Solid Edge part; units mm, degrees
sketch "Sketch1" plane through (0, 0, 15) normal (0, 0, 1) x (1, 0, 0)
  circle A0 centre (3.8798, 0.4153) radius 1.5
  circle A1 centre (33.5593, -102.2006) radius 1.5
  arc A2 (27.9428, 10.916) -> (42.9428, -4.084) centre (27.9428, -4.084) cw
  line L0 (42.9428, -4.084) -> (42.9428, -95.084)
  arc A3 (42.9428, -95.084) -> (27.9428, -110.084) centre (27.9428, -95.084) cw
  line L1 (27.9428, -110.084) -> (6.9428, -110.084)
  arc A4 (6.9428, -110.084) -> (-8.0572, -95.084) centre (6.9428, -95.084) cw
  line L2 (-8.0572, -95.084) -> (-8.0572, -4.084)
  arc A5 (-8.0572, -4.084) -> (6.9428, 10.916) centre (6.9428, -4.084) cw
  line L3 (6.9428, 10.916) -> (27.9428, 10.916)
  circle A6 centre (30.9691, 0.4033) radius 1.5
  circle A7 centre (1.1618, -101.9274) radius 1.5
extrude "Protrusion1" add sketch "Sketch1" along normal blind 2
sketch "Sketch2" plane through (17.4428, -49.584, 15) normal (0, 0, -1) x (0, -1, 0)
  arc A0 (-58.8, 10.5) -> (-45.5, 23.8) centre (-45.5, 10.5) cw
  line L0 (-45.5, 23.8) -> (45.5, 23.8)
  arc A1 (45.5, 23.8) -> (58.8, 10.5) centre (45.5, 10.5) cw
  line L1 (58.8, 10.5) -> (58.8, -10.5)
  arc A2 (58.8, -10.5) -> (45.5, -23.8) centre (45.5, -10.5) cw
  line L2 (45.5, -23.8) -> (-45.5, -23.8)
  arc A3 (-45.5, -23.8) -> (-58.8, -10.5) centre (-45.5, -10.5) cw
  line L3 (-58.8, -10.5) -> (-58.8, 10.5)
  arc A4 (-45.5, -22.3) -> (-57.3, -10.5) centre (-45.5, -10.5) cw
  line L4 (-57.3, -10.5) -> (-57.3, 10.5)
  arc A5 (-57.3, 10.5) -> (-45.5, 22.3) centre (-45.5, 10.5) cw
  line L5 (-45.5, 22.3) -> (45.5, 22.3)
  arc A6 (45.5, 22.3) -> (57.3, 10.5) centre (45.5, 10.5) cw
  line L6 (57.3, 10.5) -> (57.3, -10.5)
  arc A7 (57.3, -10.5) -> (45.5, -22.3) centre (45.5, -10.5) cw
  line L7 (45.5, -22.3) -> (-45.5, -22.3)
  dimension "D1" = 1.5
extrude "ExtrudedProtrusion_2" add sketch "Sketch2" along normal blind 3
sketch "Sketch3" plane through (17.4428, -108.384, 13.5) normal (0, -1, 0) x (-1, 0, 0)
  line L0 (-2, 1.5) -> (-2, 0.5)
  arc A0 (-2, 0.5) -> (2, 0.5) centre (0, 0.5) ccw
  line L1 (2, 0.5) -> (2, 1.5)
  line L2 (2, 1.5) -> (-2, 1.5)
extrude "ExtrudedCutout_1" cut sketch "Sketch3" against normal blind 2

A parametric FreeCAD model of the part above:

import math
import FreeCAD as App
import Part
import Sketcher
from FreeCAD import Vector
Q = App.Units.Quantity

doc = App.newDocument("Part")
body = doc.addObject("PartDesign::Body", "Body")

# Sketch on XY plane
sketch1 = body.newObject("Sketcher::SketchObject", "Sketch")
sketch1.AttachmentSupport = (doc.getObject("XY_Plane"), [""])
sketch1.MapMode = "FlatFace"
sketch1.AttachmentOffset = App.Placement(Vector(0, 0, 15), App.Rotation())
sketch1.addGeometry(Part.ArcOfCircle(Part.Circle(Vector(27.9, -4.1, 0), Vector(0, 0, 1), 15), math.radians(0), math.radians(90)), False)
sketch1.addGeometry(Part.LineSegment(Vector(27.9, 10.9, 0), Vector(6.9, 10.9, 0)), False)
sketch1.addGeometry(Part.ArcOfCircle(Part.Circle(Vector(6.9, -4.1, 0), Vector(0, 0, 1), 15), math.radians(90), math.radians(180)), False)
sketch1.addGeometry(Part.LineSegment(Vector(-8.1, -4.1, 0), Vector(-8.1, -95.1, 0)), False)
sketch1.addGeometry(Part.ArcOfCircle(Part.Circle(Vector(6.9, -95.1, 0), Vector(0, 0, 1), 15), math.radians(180), math.radians(270)), False)
sketch1.addGeometry(Part.LineSegment(Vector(6.9, -110.1, 0), Vector(27.9, -110.1, 0)), False)
sketch1.addGeometry(Part.ArcOfCircle(Part.Circle(Vector(27.9, -95.1, 0), Vector(0, 0, 1), 15), math.radians(-90), math.radians(0)), False)
sketch1.addGeometry(Part.LineSegment(Vector(42.9, -95.1, 0), Vector(42.9, -4.1, 0)), False)
sketch1.addGeometry(Part.Circle(Vector(1.2, -101.9, 0), Vector(0, 0, 1), 1.5), False)
sketch1.addGeometry(Part.Circle(Vector(33.6, -102.2, 0), Vector(0, 0, 1), 1.5), False)
sketch1.addGeometry(Part.Circle(Vector(3.9, 0.4, 0), Vector(0, 0, 1), 1.5), False)
sketch1.addGeometry(Part.Circle(Vector(31, 0.4, 0), Vector(0, 0, 1), 1.5), False)
sketch1.addConstraint(Sketcher.Constraint("Tangent", 0, 2, 1, 1))
sketch1.addConstraint(Sketcher.Constraint("Tangent", 1, 2, 2, 1))
sketch1.addConstraint(Sketcher.Constraint("Tangent", 2, 2, 3, 1))
sketch1.addConstraint(Sketcher.Constraint("Tangent", 3, 2, 4, 1))
sketch1.addConstraint(Sketcher.Constraint("Tangent", 4, 2, 5, 1))
sketch1.addConstraint(Sketcher.Constraint("Tangent", 5, 2, 6, 1))
sketch1.addConstraint(Sketcher.Constraint("Tangent", 6, 2, 7, 1))
sketch1.addConstraint(Sketcher.Constraint("Tangent", 7, 2, 0, 1))
sketch1.addConstraint(Sketcher.Constraint("Horizontal", 1))
sketch1.addConstraint(Sketcher.Constraint("Vertical", 3))
sketch1.addConstraint(Sketcher.Constraint("Horizontal", 5))
sketch1.addConstraint(Sketcher.Constraint("Vertical", 7))
sketch1.addConstraint(Sketcher.Constraint("Equal", 0, 2))
sketch1.addConstraint(Sketcher.Constraint("Equal", 2, 4))
sketch1.addConstraint(Sketcher.Constraint("Equal", 4, 6))
sketch1.addConstraint(Sketcher.Constraint("Equal", 8, 9))
sketch1.addConstraint(Sketcher.Constraint("Equal", 9, 10))
sketch1.addConstraint(Sketcher.Constraint("Equal", 10, 11))
sketch1.addConstraint(Sketcher.Constraint("Diameter", 8, Q("3 mm")))
sketch1.addConstraint(Sketcher.Constraint("Radius", 0, Q("15 mm")))
sketch1.addConstraint(Sketcher.Constraint("DistanceX", 1, 2, 1, 1, Q("21 mm")))
sketch1.addConstraint(Sketcher.Constraint("DistanceY", 3, 2, 3, 1, Q("91 mm")))
sketch1.addConstraint(Sketcher.Constraint("DistanceY", 0, 3, -1, 1, Q("4.084 mm")))
sketch1.addConstraint(Sketcher.Constraint("DistanceX", -1, 1, 11, 3, Q("30.969 mm")))
sketch1.addConstraint(Sketcher.Constraint("DistanceX", 8, 3, 4, 3, Q("5.781 mm")))
sketch1.addConstraint(Sketcher.Constraint("DistanceX", 10, 3, 2, 3, Q("3.063 mm")))
sketch1.addConstraint(Sketcher.Constraint("DistanceY", 11, 3, 10, 3, Q("0.012 mm")))
sketch1.addConstraint(Sketcher.Constraint("DistanceX", -1, 1, 0, 3, Q("27.9428 mm")))
sketch1.addConstraint(Sketcher.Constraint("DistanceY", 8, 3, -1, 1, Q("101.9274 mm")))
sketch1.addConstraint(Sketcher.Constraint("DistanceX", -1, 1, 9, 3, Q("33.5593 mm")))
sketch1.addConstraint(Sketcher.Constraint("DistanceY", 9, 3, -1, 1, Q("102.2006 mm")))
sketch1.addConstraint(Sketcher.Constraint("DistanceY", -1, 1, 10, 3, Q("0.4153 mm")))
pad1 = body.newObject("PartDesign::Pad", "Pad")
pad1.Profile = sketch1
pad1.Length = 2

# Sketch on XY plane
sketch2 = body.newObject("Sketcher::SketchObject", "Sketch001")
sketch2.AttachmentSupport = (doc.getObject("XY_Plane"), [""])
sketch2.MapMode = "FlatFace"
sketch2.AttachmentOffset = App.Placement(Vector(0, 0, 15), App.Rotation())
sketch2.addGeometry(Part.ArcOfCircle(Part.Circle(Vector(7, -4, 0), Vector(0, 0, 1), 13), math.radians(90), math.radians(180)), False)
sketch2.addGeometry(Part.LineSegment(Vector(7, 9, 0), Vector(28, 9, 0)), False)
sketch2.addGeometry(Part.ArcOfCircle(Part.Circle(Vector(28, -4, 0), Vector(0, 0, 1), 13), math.radians(0), math.radians(90)), False)
sketch2.addGeometry(Part.LineSegment(Vector(41, -4, 0), Vector(41, -95, 0)), False)
sketch2.addGeometry(Part.ArcOfCircle(Part.Circle(Vector(28, -95, 0), Vector(0, 0, 1), 13), math.radians(-90), math.radians(0)), False)
sketch2.addGeometry(Part.LineSegment(Vector(28, -108, 0), Vector(7, -108, 0)), False)
sketch2.addGeometry(Part.ArcOfCircle(Part.Circle(Vector(7, -95, 0), Vector(0, 0, 1), 13), math.radians(180), math.radians(270)), False)
sketch2.addGeometry(Part.LineSegment(Vector(-6, -95, 0), Vector(-6, -4, 0)), False)
sketch2.addGeometry(Part.LineSegment(Vector(40, -95, 0), Vector(40, -4, 0)), False)
sketch2.addGeometry(Part.ArcOfCircle(Part.Circle(Vector(28, -4, 0), Vector(0, 0, 1), 12), math.radians(0), math.radians(90)), False)
sketch2.addGeometry(Part.LineSegment(Vector(28, 8, 0), Vector(7, 8, 0)), False)
sketch2.addGeometry(Part.ArcOfCircle(Part.Circle(Vector(7, -4, 0), Vector(0, 0, 1), 12), math.radians(90), math.radians(180)), False)
sketch2.addGeometry(Part.LineSegment(Vector(-5, -4, 0), Vector(-5, -95, 0)), False)
sketch2.addGeometry(Part.ArcOfCircle(Part.Circle(Vector(7, -95, 0), Vector(0, 0, 1), 12), math.radians(180), math.radians(270)), False)
sketch2.addGeometry(Part.LineSegment(Vector(7, -107, 0), Vector(28, -107, 0)), False)
sketch2.addGeometry(Part.ArcOfCircle(Part.Circle(Vector(28, -95, 0), Vector(0, 0, 1), 12), math.radians(-90), math.radians(0)), False)
sketch2.addConstraint(Sketcher.Constraint("Tangent", 0, 1, 1, 1))
sketch2.addConstraint(Sketcher.Constraint("Tangent", 1, 2, 2, 2))
sketch2.addConstraint(Sketcher.Constraint("Tangent", 2, 1, 3, 1))
sketch2.addConstraint(Sketcher.Constraint("Tangent", 3, 2, 4, 2))
sketch2.addConstraint(Sketcher.Constraint("Tangent", 4, 1, 5, 1))
sketch2.addConstraint(Sketcher.Constraint("Tangent", 5, 2, 6, 2))
sketch2.addConstraint(Sketcher.Constraint("Tangent", 6, 1, 7, 1))
sketch2.addConstraint(Sketcher.Constraint("Tangent", 7, 2, 0, 2))
sketch2.addConstraint(Sketcher.Constraint("Tangent", 8, 2, 9, 1))
sketch2.addConstraint(Sketcher.Constraint("Tangent", 9, 2, 10, 1))
sketch2.addConstraint(Sketcher.Constraint("Tangent", 10, 2, 11, 1))
sketch2.addConstraint(Sketcher.Constraint("Tangent", 11, 2, 12, 1))
sketch2.addConstraint(Sketcher.Constraint("Tangent", 12, 2, 13, 1))
sketch2.addConstraint(Sketcher.Constraint("Tangent", 13, 2, 14, 1))
sketch2.addConstraint(Sketcher.Constraint("Tangent", 14, 2, 15, 1))
sketch2.addConstraint(Sketcher.Constraint("Tangent", 15, 2, 8, 1))
sketch2.addConstraint(Sketcher.Constraint("Horizontal", 1))
sketch2.addConstraint(Sketcher.Constraint("Vertical", 3))
sketch2.addConstraint(Sketcher.Constraint("Horizontal", 5))
sketch2.addConstraint(Sketcher.Constraint("Vertical", 7))
sketch2.addConstraint(Sketcher.Constraint("Vertical", 8))
sketch2.addConstraint(Sketcher.Constraint("Horizontal", 10))
sketch2.addConstraint(Sketcher.Constraint("Vertical", 12))
sketch2.addConstraint(Sketcher.Constraint("Horizontal", 14))
sketch2.addConstraint(Sketcher.Constraint("Coincident", 9, 3, 2, 3))
sketch2.addConstraint(Sketcher.Constraint("Coincident", 11, 3, 0, 3))
sketch2.addConstraint(Sketcher.Constraint("Coincident", 13, 3, 6, 3))
sketch2.addConstraint(Sketcher.Constraint("Equal", 0, 2))
sketch2.addConstraint(Sketcher.Constraint("Equal", 2, 4))
sketch2.addConstraint(Sketcher.Constraint("Equal", 4, 6))
sketch2.addConstraint(Sketcher.Constraint("Equal", 13, 15))
sketch2.addConstraint(Sketcher.Constraint("Radius", 0, Q("13.3 mm")))
sketch2.addConstraint(Sketcher.Constraint("Radius", 9, Q("11.8 mm")))
sketch2.addConstraint(Sketcher.Constraint("DistanceX", 1, 1, 1, 2, Q("21 mm")))
sketch2.addConstraint(Sketcher.Constraint("DistanceY", 3, 2, 3, 1, Q("91 mm")))
sketch2.addConstraint(Sketcher.Constraint("DistanceY", 0, 3, -1, 1, Q("4.084 mm")))
sketch2.addConstraint(Sketcher.Constraint("DistanceX", -1, 1, 0, 3, Q("6.9428 mm")))
pad2 = body.newObject("PartDesign::Pad", "Pad001")
pad2.Profile = sketch2
pad2.Length = 3
pad2.Reversed = True

# Sketch on XZ plane
sketch3 = body.newObject("Sketcher::SketchObject", "Sketch002")
sketch3.AttachmentSupport = (doc.getObject("XZ_Plane"), [""])
sketch3.MapMode = "FlatFace"
sketch3.AttachmentOffset = App.Placement(Vector(0, 0, 108.384), App.Rotation())
sketch3.addGeometry(Part.LineSegment(Vector(15.4, 12, 0), Vector(19.4, 12, 0)), False)
sketch3.addGeometry(Part.LineSegment(Vector(19.4, 12, 0), Vector(19.4, 13, 0)), False)
sketch3.addGeometry(Part.ArcOfCircle(Part.Circle(Vector(17.4, 13, 0), Vector(0, 0, 1), 2), math.radians(0), math.radians(180)), False)
sketch3.addGeometry(Part.LineSegment(Vector(15.4, 13, 0), Vector(15.4, 12, 0)), False)
sketch3.addConstraint(Sketcher.Constraint("Coincident", 0, 2, 1, 1))
sketch3.addConstraint(Sketcher.Constraint("Tangent", 1, 2, 2, 1))
sketch3.addConstraint(Sketcher.Constraint("Tangent", 2, 2, 3, 1))
sketch3.addConstraint(Sketcher.Constraint("Coincident", 3, 2, 0, 1))
sketch3.addConstraint(Sketcher.Constraint("Horizontal", 0))
sketch3.addConstraint(Sketcher.Constraint("Vertical", 1))
sketch3.addConstraint(Sketcher.Constraint("Vertical", 3))
sketch3.addConstraint(Sketcher.Constraint("Radius", 2, Q("2 mm")))
sketch3.addConstraint(Sketcher.Constraint("DistanceY", 1, 1, 1, 2, Q("1 mm")))
sketch3.addConstraint(Sketcher.Constraint("DistanceY", -1, 1, 2, 3, Q("13 mm")))
sketch3.addConstraint(Sketcher.Constraint("DistanceX", -1, 1, 2, 3, Q("17.4428 mm")))
pocket1 = body.newObject("PartDesign::Pocket", "Pocket")
pocket1.Profile = sketch3
pocket1.Length = 2

doc.recompute()
